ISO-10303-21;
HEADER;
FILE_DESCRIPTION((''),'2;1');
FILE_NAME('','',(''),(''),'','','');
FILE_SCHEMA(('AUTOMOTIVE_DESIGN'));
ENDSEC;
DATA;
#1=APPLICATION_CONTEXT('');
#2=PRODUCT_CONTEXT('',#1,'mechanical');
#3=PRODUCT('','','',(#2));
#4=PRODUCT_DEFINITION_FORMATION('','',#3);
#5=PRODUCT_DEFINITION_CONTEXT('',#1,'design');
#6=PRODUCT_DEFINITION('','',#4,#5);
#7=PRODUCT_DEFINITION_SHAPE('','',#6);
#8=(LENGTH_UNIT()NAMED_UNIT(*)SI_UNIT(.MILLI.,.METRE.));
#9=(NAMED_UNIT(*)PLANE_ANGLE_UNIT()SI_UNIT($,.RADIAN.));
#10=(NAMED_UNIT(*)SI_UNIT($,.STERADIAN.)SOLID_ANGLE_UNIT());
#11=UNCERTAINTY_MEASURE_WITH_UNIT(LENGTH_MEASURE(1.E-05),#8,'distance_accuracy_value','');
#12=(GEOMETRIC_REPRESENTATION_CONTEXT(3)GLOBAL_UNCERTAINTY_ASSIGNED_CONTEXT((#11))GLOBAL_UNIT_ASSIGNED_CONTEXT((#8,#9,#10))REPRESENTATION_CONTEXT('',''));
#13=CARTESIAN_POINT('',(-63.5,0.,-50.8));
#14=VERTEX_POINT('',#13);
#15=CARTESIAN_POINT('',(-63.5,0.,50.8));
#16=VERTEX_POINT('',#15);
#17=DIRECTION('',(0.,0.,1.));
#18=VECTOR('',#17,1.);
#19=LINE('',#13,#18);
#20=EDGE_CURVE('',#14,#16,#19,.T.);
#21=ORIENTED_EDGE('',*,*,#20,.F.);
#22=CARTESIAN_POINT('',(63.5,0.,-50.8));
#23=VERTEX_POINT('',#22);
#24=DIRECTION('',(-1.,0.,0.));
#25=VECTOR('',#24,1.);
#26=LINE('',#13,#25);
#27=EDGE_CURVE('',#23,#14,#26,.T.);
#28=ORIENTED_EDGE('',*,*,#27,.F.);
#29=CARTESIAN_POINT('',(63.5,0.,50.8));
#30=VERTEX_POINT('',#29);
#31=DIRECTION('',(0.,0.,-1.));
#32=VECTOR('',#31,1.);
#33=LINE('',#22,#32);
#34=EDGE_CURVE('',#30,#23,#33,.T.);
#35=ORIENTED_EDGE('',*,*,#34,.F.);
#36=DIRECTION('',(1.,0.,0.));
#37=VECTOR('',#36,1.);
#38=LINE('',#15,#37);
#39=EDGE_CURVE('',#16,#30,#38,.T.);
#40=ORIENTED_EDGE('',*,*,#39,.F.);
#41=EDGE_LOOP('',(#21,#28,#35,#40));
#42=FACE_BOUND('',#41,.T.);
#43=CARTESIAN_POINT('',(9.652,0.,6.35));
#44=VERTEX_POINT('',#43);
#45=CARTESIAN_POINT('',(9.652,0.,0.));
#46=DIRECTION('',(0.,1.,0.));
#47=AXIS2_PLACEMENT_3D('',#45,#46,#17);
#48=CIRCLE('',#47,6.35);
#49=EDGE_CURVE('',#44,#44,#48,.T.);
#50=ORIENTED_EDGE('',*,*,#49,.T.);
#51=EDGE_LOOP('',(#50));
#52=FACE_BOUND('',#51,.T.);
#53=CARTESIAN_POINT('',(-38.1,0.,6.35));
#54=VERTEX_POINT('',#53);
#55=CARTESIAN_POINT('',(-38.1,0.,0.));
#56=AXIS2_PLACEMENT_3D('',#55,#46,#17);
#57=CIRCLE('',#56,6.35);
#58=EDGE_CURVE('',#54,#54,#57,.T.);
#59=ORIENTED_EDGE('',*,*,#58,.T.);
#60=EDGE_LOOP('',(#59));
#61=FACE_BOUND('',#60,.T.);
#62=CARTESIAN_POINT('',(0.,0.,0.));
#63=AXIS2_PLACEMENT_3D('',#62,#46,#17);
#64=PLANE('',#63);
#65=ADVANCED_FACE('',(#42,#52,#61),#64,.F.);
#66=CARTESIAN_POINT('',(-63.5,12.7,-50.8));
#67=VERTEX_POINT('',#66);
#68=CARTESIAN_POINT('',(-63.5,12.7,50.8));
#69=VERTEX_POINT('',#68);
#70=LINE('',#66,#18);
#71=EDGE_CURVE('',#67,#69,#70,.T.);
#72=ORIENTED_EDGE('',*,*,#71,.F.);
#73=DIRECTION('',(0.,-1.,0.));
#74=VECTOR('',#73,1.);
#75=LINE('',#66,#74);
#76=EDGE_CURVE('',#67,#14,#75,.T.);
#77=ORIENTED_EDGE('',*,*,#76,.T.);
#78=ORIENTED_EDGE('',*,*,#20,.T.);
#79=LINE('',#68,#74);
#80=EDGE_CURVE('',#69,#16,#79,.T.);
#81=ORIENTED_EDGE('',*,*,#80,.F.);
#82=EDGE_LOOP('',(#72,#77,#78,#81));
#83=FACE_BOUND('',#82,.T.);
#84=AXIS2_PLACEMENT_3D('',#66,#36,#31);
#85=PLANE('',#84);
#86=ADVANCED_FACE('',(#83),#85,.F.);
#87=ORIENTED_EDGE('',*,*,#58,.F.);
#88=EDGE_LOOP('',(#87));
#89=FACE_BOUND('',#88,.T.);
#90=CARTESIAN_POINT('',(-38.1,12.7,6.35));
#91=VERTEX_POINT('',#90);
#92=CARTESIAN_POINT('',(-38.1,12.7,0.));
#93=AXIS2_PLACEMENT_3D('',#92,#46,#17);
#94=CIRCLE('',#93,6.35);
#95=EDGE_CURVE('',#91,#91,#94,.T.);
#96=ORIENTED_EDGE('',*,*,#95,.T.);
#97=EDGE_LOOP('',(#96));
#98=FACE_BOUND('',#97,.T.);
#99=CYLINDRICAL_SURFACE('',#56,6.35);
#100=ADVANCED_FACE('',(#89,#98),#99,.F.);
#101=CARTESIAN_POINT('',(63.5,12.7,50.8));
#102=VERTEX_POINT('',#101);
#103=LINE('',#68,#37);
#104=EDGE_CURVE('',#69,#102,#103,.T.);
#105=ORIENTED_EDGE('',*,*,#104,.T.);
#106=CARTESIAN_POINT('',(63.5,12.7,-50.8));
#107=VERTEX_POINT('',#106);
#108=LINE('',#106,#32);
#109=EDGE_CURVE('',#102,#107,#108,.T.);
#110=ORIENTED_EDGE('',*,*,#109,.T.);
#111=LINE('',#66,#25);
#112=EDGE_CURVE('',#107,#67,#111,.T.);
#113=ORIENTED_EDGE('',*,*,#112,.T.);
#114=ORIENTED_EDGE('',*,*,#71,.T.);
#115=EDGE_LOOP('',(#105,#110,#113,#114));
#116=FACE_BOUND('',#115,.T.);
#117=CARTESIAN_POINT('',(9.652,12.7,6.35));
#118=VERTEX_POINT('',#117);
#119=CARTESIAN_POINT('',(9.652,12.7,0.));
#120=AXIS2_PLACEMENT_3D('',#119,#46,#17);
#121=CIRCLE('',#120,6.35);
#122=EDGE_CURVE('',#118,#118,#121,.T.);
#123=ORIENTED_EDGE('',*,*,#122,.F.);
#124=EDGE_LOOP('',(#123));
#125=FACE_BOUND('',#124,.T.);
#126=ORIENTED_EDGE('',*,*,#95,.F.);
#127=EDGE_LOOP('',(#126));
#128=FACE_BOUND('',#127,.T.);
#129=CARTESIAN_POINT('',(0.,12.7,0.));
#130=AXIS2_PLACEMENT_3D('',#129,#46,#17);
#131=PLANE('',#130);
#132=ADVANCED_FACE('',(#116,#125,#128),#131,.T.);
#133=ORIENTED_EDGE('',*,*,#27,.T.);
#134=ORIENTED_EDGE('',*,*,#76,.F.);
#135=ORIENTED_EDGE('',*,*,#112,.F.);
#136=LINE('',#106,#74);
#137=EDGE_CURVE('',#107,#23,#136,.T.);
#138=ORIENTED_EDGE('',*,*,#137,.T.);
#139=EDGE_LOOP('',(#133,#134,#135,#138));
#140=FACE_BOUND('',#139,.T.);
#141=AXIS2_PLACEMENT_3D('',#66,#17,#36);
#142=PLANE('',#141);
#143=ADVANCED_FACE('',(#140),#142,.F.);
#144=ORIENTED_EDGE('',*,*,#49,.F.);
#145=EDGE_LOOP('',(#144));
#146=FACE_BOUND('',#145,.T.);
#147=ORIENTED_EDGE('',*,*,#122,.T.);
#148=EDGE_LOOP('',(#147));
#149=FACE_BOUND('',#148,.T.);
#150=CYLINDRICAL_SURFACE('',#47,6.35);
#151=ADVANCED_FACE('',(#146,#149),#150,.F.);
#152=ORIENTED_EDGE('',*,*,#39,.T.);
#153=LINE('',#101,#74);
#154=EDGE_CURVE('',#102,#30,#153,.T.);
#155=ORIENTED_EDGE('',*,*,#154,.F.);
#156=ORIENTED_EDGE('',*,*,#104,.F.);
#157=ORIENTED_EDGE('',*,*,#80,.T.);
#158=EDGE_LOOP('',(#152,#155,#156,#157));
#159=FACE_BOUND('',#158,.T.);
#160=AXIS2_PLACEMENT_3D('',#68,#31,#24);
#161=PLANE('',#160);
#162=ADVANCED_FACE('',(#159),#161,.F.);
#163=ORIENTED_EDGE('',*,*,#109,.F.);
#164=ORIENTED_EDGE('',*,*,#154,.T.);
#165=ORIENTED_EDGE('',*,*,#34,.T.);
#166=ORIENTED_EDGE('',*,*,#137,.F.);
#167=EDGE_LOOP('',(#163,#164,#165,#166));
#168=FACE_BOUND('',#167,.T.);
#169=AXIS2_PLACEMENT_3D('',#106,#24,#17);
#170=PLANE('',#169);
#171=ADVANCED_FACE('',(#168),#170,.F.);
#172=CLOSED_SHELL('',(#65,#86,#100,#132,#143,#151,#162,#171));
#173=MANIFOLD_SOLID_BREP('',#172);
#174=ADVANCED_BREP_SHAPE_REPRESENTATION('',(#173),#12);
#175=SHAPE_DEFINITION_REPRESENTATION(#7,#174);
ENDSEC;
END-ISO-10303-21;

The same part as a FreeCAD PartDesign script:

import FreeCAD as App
import Part
import Sketcher

V = App.Vector
Q = App.Units.Quantity


def add_polygon(sketch, points):
    """Adds a closed chain of lines whose ends are joined by coincident constraints."""
    first, n = sketch.GeometryCount, len(points)
    for a, b in zip(points, points[1:] + points[:1]):
        sketch.addGeometry(Part.LineSegment(App.Vector(*a, 0), App.Vector(*b, 0)), False)
    for i in range(n):
        sketch.addConstraint(Sketcher.Constraint("Coincident", first + i, 2, first + (i + 1) % n, 1))

doc = App.newDocument("Part")
body = doc.addObject("PartDesign::Body", "Body")

# Sketch on XZ plane
sketch1 = body.newObject("Sketcher::SketchObject", "Sketch")
sketch1.AttachmentSupport = (doc.getObject("XZ_Plane"), [""])
sketch1.MapMode = "FlatFace"
add_polygon(sketch1, [(-64, -51), (-64, 51), (64, 51), (64, -51)])  # lines 0-3
sketch1.addConstraint(Sketcher.Constraint("Vertical", 0))
sketch1.addConstraint(Sketcher.Constraint("Horizontal", 1))
sketch1.addConstraint(Sketcher.Constraint("Vertical", 2))
sketch1.addConstraint(Sketcher.Constraint("Horizontal", 3))
sketch1.addConstraint(Sketcher.Constraint("Symmetric", 0, 2, 2, 2, -1, 1))
sketch1.addConstraint(Sketcher.Constraint("DistanceX", 1, 1, 1, 2, Q("5 in")))
sketch1.addConstraint(Sketcher.Constraint("DistanceY", 0, 1, 0, 2, Q("4 in")))
pad1 = body.newObject("PartDesign::Pad", "Pad")
pad1.Profile = sketch1
pad1.Length = Q("0.5 in")
pad1.Reversed = True

# Sketch on XZ plane
sketch2 = body.newObject("Sketcher::SketchObject", "Sketch001")
sketch2.AttachmentSupport = (doc.getObject("XZ_Plane"), [""])
sketch2.MapMode = "FlatFace"
sketch2.AttachmentOffset = App.Placement(V(0, 0, -0.5 * 25.4), App.Rotation())
sketch2.addGeometry(Part.Circle(V(-38, 0, 0), V(0, 0, 1), 6), False)
sketch2.addGeometry(Part.Circle(V(10, 0, 0), V(0, 0, 1), 6), False)
sketch2.addConstraint(Sketcher.Constraint("Equal", 0, 1))
sketch2.addConstraint(Sketcher.Constraint("PointOnObject", 0, 3, -1))
sketch2.addConstraint(Sketcher.Constraint("PointOnObject", 1, 3, -1))
sketch2.addConstraint(Sketcher.Constraint("Diameter", 0, Q("0.5 in")))
sketch2.addConstraint(Sketcher.Constraint("DistanceX", 0, 3, -1, 1, Q("1.5 in")))
sketch2.addConstraint(Sketcher.Constraint("DistanceX", -1, 1, 1, 3, Q("0.38 in")))
pocket1 = body.newObject("PartDesign::Pocket", "Pocket")
pocket1.Profile = sketch2
pocket1.Type = "ThroughAll"
pocket1.Reversed = True

doc.recompute()
